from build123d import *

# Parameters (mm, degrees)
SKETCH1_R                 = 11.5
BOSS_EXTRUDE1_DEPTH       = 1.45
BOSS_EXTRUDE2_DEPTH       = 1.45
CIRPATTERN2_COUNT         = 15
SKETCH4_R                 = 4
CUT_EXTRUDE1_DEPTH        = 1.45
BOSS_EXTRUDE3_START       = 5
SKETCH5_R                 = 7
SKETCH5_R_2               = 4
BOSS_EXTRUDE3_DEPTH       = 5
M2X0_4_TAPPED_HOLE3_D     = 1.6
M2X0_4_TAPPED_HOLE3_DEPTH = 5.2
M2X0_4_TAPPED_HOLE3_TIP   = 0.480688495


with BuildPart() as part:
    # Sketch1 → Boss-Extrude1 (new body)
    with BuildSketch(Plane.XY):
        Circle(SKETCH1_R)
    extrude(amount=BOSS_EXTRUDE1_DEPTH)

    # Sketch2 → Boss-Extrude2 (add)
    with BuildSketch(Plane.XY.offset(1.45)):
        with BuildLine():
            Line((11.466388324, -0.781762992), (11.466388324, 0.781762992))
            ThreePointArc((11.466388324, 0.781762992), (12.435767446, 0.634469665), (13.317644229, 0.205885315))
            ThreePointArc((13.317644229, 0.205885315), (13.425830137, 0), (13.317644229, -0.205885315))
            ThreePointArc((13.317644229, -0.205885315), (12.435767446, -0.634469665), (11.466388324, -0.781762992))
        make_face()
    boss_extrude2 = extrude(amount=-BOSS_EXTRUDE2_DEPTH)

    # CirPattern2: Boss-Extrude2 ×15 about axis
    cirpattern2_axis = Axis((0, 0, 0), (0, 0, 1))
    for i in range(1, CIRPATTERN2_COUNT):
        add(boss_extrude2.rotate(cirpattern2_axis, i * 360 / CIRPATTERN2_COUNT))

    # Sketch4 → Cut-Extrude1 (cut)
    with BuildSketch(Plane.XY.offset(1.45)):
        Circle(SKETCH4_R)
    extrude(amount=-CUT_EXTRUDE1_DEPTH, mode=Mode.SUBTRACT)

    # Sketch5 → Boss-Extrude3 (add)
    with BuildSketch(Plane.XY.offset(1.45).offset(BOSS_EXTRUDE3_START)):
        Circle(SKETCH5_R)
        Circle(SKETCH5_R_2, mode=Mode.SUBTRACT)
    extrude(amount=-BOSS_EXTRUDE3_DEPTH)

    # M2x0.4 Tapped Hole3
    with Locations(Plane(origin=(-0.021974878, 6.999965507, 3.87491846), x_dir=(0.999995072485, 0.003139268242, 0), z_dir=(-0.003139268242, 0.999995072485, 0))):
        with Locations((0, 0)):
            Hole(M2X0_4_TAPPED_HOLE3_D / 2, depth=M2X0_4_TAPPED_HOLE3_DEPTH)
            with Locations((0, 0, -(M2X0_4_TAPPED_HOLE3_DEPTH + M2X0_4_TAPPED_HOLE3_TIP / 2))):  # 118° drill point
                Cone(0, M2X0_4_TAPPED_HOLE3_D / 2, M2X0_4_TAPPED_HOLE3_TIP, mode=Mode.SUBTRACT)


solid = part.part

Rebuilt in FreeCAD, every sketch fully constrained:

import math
import FreeCAD as App
import Part
import Sketcher

V = App.Vector

doc = App.newDocument("Part")
body = doc.addObject("PartDesign::Body", "Body")

sketch1 = doc.addObject("Sketcher::SketchObject", "Sketch")
body.addObject(sketch1)
sketch1.AttachmentSupport = (doc.XY_Plane, [""])
sketch1.MapMode = "FlatFace"
sketch1.addGeometry(Part.Circle(V(0, 0, 0), V(0, 0, 1), 12), False)
sketch1.addConstraint([
    Sketcher.Constraint("Coincident", 0, 3, -1, 1),
    Sketcher.Constraint("Diameter", 0, 23.0),
])
pad1 = doc.addObject("PartDesign::Pad", "Pad")
body.addObject(pad1)
pad1.Profile = sketch1
pad1.Length = 1.45

sketch2 = doc.addObject("Sketcher::SketchObject", "Sketch001")
body.addObject(sketch2)
sketch2.AttachmentSupport = (doc.XY_Plane, [""])
sketch2.MapMode = "FlatFace"
sketch2.AttachmentOffset = App.Placement(V(0, 0, 1.45), App.Rotation())
sketch2.addGeometry([
    Part.LineSegment(V(11.47, 0.78, 0), V(11.47, -0.78, 0)),
    Part.ArcOfCircle(Part.Circle(V(11.47, 2.48, 0), V(0, 0, 1), 3.26), math.radians(-90), math.radians(-55)),
    Part.ArcOfCircle(Part.Circle(V(13.18, 0, 0), V(0, 0, 1), 0.25), math.radians(-55), math.radians(55)),
    Part.ArcOfCircle(Part.Circle(V(11.47, -2.48, 0), V(0, 0, 1), 3.26), math.radians(55), math.radians(90)),
], False)
sketch2.addConstraint([
    Sketcher.Constraint("Coincident", 0, 2, 1, 1),
    Sketcher.Constraint("Tangent", 1, 2, 2, 1),
    Sketcher.Constraint("Tangent", 2, 2, 3, 1),
    Sketcher.Constraint("Coincident", 3, 2, 0, 1),
    Sketcher.Constraint("Vertical", 0),
    Sketcher.Constraint("Equal", 1, 3),
    Sketcher.Constraint("Symmetric", 1, 3, 3, 3, -1),
    Sketcher.Constraint("Vertical", 3, 3, 0, 2),
    Sketcher.Constraint("Radius", 2, 0.25),
    Sketcher.Constraint("DistanceY", 3, 3, 0, 2, 1.7),
    Sketcher.Constraint("Radius", 1, 3.263526),
    Sketcher.Constraint("DistanceX", -1, 1, 1, 3, 11.466388),
])
pad2 = doc.addObject("PartDesign::Pad", "Pad001")
body.addObject(pad2)
pad2.Profile = sketch2
pad2.Length = 1.45
pad2.Reversed = True
doc.recompute()

polarpattern = doc.addObject("PartDesign::PolarPattern", "PolarPattern")
body.addObject(polarpattern)
polarpattern.Originals = [pad2]
polarpattern.Axis = (doc.Z_Axis, [""])
polarpattern.Angle = 360
polarpattern.Occurrences = 15
body.Tip = polarpattern

sketch3 = doc.addObject("Sketcher::SketchObject", "Sketch002")
body.addObject(sketch3)
sketch3.AttachmentSupport = (doc.XY_Plane, [""])
sketch3.MapMode = "FlatFace"
sketch3.AttachmentOffset = App.Placement(V(0, 0, 1.45), App.Rotation())
sketch3.addGeometry(Part.Circle(V(0, 0, 0), V(0, 0, 1), 4), False)
sketch3.addConstraint([
    Sketcher.Constraint("Coincident", 0, 3, -1, 1),
    Sketcher.Constraint("Diameter", 0, 8.0),
])
pocket1 = doc.addObject("PartDesign::Pocket", "Pocket")
body.addObject(pocket1)
pocket1.Profile = sketch3
pocket1.Length = 1.45

sketch4 = doc.addObject("Sketcher::SketchObject", "Sketch003")
body.addObject(sketch4)
sketch4.AttachmentSupport = (doc.XY_Plane, [""])
sketch4.MapMode = "FlatFace"
sketch4.AttachmentOffset = App.Placement(V(0, 0, 6.45), App.Rotation())
sketch4.addGeometry([
    Part.Circle(V(0, 0, 0), V(0, 0, 1), 7),
    Part.Circle(V(0, 0, 0), V(0, 0, 1), 4),
], False)
sketch4.addConstraint([
    Sketcher.Constraint("Coincident", 0, 3, -1, 1),
    Sketcher.Constraint("Coincident", 1, 3, -1, 1),
    Sketcher.Constraint("Diameter", 0, 14.0),
    Sketcher.Constraint("Diameter", 1, 8.0),
])
pad3 = doc.addObject("PartDesign::Pad", "Pad002")
body.addObject(pad3)
pad3.Profile = sketch4
pad3.Length = 5
pad3.Reversed = True

sketch5 = doc.addObject("Sketcher::SketchObject", "Sketch004")
body.addObject(sketch5)
sketch5.Placement = App.Placement(V(-0.021975, 6.999966, 0), App.Rotation(V(0.999995072, 0.003139268, 0), V(0, 0, -0.999999999), V(-0.003139268, 0.999995072, 0), "ZXY"))
sketch5.addGeometry(Part.Circle(V(0, -3.9, 0), V(0, 0, 1), 0.8), False)
sketch5.addConstraint([
    Sketcher.Constraint("PointOnObject", 0, 3, -2),
    Sketcher.Constraint("Diameter", 0, 1.6),
    Sketcher.Constraint("DistanceY", 0, 3, -1, 1, 3.874918),
])
doc.recompute()
hole = doc.addObject("PartDesign::Hole", "Hole")
body.addObject(hole)
hole.Profile = sketch5
hole.ThreadType = "None"
hole.Diameter = 1.6
hole.DepthType = "Dimension"
hole.Depth = 5.2
hole.DrillPoint = "Angled"
hole.DrillPointAngle = 118

doc.recompute()
